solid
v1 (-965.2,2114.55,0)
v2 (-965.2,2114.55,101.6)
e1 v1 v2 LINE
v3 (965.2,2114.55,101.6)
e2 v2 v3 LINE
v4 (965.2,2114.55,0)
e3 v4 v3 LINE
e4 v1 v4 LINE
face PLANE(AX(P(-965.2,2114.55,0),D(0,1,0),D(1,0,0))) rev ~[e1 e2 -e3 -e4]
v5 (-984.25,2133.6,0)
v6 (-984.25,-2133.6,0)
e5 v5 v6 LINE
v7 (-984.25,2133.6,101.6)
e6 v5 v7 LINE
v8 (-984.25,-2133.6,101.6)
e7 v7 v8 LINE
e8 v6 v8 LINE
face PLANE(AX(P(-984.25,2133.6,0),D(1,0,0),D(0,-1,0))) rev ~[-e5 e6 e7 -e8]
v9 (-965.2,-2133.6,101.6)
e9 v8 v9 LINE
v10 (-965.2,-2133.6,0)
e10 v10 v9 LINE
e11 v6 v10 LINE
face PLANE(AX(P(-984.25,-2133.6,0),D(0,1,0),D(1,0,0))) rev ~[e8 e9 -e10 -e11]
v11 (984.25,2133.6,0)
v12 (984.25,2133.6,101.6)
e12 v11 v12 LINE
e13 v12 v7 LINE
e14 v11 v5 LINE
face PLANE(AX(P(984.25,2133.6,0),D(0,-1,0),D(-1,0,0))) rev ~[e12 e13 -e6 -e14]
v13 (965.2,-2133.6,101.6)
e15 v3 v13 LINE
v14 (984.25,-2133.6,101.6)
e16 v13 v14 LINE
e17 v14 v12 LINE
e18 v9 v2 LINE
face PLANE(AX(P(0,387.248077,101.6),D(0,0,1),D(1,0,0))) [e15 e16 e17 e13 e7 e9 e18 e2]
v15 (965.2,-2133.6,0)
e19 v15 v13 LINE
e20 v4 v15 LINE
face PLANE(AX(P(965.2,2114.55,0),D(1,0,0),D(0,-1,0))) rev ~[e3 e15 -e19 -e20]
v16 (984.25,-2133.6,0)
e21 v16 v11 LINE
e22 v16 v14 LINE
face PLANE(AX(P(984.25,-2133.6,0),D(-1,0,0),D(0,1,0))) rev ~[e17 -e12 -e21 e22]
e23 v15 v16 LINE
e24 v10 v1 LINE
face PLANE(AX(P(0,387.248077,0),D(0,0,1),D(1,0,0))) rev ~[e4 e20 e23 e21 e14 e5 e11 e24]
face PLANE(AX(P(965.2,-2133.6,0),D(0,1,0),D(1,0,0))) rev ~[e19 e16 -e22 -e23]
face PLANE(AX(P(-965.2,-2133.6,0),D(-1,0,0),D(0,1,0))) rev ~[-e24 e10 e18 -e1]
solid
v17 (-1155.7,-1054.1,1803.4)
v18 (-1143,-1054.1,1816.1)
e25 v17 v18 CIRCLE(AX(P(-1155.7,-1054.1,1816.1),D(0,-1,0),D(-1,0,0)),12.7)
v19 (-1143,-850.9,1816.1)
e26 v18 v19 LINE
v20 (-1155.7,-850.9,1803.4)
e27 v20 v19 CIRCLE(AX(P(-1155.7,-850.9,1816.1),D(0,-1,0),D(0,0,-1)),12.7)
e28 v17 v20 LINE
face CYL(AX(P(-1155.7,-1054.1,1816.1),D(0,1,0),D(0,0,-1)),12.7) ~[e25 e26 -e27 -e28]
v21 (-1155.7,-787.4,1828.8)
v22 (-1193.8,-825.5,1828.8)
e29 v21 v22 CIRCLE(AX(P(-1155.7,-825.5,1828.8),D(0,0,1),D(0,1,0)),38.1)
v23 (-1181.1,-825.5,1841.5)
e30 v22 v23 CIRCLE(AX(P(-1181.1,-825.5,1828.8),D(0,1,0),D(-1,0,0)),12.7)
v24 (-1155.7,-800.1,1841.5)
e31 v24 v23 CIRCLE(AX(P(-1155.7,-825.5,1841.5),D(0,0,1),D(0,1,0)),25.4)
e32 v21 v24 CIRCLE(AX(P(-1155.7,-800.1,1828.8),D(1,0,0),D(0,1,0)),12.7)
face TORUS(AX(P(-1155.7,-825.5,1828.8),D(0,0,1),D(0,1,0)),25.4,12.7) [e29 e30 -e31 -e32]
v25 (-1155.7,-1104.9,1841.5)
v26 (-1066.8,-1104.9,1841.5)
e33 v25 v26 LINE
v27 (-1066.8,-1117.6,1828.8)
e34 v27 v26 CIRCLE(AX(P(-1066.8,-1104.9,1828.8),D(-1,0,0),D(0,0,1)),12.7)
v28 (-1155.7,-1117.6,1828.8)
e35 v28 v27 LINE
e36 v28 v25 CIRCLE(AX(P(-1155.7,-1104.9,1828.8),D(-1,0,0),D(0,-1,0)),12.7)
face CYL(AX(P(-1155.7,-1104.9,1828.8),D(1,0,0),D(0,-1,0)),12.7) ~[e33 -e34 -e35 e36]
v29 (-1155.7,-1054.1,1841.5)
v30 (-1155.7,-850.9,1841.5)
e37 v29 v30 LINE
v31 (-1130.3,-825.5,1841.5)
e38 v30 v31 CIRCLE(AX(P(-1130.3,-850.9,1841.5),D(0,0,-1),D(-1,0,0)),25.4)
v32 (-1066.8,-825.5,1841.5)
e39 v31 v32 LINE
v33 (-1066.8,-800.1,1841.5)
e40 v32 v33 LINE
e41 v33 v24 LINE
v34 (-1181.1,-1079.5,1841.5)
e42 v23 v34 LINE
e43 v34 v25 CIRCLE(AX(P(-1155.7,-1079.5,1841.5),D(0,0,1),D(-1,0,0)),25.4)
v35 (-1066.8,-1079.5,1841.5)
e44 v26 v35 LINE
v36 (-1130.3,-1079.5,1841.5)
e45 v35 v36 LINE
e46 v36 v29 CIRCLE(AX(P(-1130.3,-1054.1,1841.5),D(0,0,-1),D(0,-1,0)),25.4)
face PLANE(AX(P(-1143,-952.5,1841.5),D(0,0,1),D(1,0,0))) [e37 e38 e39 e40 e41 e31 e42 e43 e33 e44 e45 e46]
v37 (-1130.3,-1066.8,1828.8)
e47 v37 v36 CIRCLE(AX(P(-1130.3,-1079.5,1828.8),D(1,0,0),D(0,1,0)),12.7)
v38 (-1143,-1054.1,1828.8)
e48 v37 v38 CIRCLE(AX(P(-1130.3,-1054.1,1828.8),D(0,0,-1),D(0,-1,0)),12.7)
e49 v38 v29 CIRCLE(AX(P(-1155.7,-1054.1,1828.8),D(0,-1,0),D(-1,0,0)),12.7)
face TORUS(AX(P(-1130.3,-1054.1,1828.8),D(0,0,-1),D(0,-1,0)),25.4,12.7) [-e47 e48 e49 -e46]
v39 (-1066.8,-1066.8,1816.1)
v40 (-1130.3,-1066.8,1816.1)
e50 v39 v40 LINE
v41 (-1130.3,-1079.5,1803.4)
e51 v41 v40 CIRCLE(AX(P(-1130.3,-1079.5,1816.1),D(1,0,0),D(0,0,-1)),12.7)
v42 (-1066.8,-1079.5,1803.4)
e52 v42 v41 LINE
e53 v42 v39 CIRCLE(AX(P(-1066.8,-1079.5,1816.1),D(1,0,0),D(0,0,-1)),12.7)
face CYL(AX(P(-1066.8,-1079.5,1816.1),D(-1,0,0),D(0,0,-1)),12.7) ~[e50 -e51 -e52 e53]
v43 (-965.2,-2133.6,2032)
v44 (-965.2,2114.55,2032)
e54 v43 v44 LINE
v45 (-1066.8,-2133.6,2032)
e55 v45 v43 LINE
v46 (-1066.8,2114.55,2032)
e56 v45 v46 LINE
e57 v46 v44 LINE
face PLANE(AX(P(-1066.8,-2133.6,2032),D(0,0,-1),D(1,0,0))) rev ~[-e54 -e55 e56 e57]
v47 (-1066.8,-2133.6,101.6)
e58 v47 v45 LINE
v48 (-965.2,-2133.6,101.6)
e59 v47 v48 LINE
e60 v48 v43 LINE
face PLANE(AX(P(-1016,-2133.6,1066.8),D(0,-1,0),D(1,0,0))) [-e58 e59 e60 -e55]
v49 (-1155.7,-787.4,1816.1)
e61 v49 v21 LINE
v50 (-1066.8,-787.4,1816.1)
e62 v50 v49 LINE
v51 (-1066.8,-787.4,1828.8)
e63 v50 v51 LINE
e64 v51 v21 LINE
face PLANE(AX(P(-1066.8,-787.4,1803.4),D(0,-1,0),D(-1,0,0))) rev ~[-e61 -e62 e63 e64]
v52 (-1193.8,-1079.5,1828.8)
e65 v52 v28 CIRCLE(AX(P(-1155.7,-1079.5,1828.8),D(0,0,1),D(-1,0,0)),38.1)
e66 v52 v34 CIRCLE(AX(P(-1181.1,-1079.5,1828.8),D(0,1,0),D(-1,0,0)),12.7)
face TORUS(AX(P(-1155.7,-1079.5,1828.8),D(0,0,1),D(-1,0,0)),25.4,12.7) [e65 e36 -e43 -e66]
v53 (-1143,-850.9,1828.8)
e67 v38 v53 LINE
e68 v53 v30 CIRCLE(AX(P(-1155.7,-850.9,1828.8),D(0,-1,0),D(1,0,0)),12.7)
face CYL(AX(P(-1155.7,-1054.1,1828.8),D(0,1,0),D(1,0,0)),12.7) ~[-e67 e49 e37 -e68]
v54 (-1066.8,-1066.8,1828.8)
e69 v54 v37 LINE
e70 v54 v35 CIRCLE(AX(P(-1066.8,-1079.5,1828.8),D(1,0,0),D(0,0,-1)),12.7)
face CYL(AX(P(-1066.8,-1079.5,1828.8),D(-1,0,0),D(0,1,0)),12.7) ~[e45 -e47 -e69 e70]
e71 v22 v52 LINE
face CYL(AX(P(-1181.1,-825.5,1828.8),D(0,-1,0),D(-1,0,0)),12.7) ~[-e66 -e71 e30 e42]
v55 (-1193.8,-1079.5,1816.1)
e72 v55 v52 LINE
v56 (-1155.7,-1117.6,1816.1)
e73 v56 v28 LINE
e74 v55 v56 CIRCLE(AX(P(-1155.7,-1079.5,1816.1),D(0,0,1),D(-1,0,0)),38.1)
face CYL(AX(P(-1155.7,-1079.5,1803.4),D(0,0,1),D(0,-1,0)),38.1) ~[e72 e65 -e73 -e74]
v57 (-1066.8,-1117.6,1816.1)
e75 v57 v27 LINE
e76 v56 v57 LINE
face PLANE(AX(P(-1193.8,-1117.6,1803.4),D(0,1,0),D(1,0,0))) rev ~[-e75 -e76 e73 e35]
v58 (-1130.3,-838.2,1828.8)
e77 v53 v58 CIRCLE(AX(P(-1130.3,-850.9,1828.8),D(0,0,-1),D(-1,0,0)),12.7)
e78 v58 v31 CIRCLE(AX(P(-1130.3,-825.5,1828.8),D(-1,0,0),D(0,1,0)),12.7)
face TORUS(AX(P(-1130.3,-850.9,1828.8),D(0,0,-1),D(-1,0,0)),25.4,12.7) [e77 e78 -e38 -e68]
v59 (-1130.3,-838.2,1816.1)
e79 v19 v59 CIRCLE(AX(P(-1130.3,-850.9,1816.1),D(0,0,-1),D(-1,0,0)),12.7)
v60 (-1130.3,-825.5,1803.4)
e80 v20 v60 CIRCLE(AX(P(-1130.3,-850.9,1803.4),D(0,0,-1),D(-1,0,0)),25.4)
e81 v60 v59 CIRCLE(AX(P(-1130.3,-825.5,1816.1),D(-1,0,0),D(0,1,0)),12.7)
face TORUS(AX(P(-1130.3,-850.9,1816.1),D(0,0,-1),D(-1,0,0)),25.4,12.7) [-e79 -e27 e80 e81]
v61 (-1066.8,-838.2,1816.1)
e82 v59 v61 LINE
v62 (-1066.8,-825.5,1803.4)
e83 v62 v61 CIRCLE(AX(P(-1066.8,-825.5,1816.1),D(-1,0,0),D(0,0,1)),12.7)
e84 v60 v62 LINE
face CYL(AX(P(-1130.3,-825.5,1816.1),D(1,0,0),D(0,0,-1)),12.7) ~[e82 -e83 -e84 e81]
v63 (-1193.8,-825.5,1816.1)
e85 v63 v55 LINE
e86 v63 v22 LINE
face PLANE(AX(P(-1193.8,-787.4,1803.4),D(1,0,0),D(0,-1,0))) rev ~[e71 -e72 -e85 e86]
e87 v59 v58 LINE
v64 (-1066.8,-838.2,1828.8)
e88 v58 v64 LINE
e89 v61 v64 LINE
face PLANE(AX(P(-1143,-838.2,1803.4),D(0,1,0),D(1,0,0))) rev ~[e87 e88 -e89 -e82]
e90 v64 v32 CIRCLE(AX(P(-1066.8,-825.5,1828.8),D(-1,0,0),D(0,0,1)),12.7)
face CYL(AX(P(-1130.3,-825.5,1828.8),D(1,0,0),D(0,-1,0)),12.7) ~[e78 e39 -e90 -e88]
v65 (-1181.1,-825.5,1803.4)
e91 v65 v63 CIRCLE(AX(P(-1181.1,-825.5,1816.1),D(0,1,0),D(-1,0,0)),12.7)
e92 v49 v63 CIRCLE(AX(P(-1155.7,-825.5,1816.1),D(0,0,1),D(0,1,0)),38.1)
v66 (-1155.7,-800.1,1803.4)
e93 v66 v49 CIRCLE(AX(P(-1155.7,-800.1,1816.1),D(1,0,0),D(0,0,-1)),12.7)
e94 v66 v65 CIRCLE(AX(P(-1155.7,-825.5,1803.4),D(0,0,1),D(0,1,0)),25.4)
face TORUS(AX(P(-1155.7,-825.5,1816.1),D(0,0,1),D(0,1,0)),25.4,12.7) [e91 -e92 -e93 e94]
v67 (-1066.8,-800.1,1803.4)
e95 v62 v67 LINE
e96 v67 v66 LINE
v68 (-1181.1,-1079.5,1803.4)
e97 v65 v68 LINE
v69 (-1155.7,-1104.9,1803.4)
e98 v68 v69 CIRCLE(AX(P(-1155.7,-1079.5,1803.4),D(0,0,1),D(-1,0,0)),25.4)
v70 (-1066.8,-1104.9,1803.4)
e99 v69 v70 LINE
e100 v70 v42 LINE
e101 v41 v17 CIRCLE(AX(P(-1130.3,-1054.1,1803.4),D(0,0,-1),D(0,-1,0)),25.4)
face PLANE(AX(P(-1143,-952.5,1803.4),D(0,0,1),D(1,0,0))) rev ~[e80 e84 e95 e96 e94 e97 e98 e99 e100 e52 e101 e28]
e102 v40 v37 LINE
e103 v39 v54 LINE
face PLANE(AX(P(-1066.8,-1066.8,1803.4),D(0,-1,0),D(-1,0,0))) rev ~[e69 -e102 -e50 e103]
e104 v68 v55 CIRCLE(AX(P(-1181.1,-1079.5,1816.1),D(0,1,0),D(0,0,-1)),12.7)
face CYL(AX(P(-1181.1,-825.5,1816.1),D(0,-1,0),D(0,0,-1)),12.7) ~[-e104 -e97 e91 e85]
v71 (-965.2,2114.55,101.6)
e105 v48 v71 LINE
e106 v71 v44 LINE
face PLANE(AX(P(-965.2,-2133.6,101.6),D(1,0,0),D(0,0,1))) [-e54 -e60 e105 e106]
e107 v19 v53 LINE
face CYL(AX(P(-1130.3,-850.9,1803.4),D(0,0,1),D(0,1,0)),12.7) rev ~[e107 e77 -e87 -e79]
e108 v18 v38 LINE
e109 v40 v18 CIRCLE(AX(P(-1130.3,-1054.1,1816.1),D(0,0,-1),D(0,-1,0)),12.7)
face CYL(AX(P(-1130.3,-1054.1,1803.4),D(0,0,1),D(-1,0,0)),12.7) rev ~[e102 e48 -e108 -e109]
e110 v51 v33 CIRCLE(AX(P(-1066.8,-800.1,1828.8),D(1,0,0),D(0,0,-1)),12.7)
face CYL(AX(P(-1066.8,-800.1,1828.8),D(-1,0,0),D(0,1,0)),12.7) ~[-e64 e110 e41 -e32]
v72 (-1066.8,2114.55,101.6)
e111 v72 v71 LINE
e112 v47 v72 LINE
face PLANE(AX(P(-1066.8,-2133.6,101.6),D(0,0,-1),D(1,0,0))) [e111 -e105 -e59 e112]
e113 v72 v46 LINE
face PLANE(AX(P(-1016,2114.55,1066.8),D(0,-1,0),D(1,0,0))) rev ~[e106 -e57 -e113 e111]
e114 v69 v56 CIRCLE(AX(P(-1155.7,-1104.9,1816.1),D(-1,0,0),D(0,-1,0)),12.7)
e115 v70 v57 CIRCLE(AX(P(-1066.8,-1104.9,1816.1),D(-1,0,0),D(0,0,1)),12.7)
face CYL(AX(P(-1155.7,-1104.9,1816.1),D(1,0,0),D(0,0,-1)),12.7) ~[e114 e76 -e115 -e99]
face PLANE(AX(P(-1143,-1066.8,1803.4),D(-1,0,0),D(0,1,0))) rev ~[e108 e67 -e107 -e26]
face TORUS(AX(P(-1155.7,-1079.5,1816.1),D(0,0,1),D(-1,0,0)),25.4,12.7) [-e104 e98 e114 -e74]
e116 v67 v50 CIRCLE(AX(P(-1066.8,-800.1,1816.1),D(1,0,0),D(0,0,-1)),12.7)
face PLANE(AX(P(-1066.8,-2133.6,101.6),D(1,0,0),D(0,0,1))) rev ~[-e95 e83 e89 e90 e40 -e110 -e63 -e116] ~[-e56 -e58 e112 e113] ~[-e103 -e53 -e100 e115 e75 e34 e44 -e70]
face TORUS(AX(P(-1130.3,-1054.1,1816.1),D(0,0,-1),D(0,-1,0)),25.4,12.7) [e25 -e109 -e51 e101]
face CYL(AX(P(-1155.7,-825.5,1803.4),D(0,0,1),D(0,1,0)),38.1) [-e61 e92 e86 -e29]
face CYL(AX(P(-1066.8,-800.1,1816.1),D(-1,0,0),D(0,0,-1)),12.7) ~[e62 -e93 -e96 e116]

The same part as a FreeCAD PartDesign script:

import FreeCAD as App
import Part
import Sketcher
from FreeCAD import Vector
Q = App.Units.Quantity


def edges_at(feature, points):
    """Names of the edges that pass closest to the given points."""
    edges = feature.Shape.Edges
    near = lambda p: min(range(len(edges)), key=lambda i: edges[i].distToShape(Part.Vertex(*p))[0])
    return sorted({f"Edge{near(p) + 1}" for p in points})


def add_polygon(sketch, points):
    """Adds a closed chain of lines whose ends are joined by coincident constraints."""
    first, n = sketch.GeometryCount, len(points)
    for a, b in zip(points, points[1:] + points[:1]):
        sketch.addGeometry(Part.LineSegment(App.Vector(*a, 0), App.Vector(*b, 0)), False)
    for i in range(n):
        sketch.addConstraint(Sketcher.Constraint("Coincident", first + i, 2, first + (i + 1) % n, 1))

doc = App.newDocument("Part")
body = doc.addObject("PartDesign::Body", "Body")

sketch1 = body.newObject("Sketcher::SketchObject", "Sketch")
sketch1.AttachmentSupport = (doc.getObject("XY_Plane"), [""])
sketch1.MapMode = "FlatFace"
add_polygon(sketch1, [(965.2, 2114.55), (965.2, -2133.6), (984.25, -2133.6), (984.25, 2133.6), (-984.25, 2133.6), (-984.25, -2133.6), (-965.2, -2133.6), (-965.2, 2114.55)])
sketch1.addConstraint(Sketcher.Constraint("Vertical", 0))
sketch1.addConstraint(Sketcher.Constraint("Horizontal", 1))
sketch1.addConstraint(Sketcher.Constraint("Vertical", 2))
sketch1.addConstraint(Sketcher.Constraint("Horizontal", 3))
sketch1.addConstraint(Sketcher.Constraint("Vertical", 4))
sketch1.addConstraint(Sketcher.Constraint("Horizontal", 5))
sketch1.addConstraint(Sketcher.Constraint("Vertical", 6))
sketch1.addConstraint(Sketcher.Constraint("Horizontal", 7))
sketch1.addConstraint(Sketcher.Constraint("Symmetric", 1, 2, 3, 2, -1, 1))
sketch1.addConstraint(Sketcher.Constraint("Symmetric", 0, 2, 5, 2, -2))
sketch1.addConstraint(Sketcher.Constraint("DistanceX", 7, 1, 7, 2, Q("76 in")))
sketch1.addConstraint(Sketcher.Constraint("DistanceY", 2, 1, 2, 2, Q("168 in")))
sketch1.addConstraint(Sketcher.Constraint("DistanceX", 3, 2, 3, 1, Q("77.5 in")))
sketch1.addConstraint(Sketcher.Constraint("DistanceY", 0, 2, 0, 1, Q("167.25 in")))
pad1 = body.newObject("PartDesign::Pad", "Pad")
pad1.Profile = sketch1
pad1.Length = Q("4 in")
body2 = doc.addObject("PartDesign::Body", "Body001")

sketch2 = body2.newObject("Sketcher::SketchObject", "Sketch001")
sketch2.AttachmentSupport = (doc.getObject("XZ_Plane001"), [""])
sketch2.MapMode = "FlatFace"
sketch2.AttachmentOffset = App.Placement(Vector(0, 0, 84 * 25.4), App.Rotation())
add_polygon(sketch2, [(-1066.8, 2032), (-1066.8, 101.6), (-965.2, 101.6), (-965.2, 2032)])
sketch2.addConstraint(Sketcher.Constraint("Vertical", 0))
sketch2.addConstraint(Sketcher.Constraint("Horizontal", 1))
sketch2.addConstraint(Sketcher.Constraint("Vertical", 2))
sketch2.addConstraint(Sketcher.Constraint("Horizontal", 3))
sketch2.addConstraint(Sketcher.Constraint("DistanceX", 1, 1, 1, 2, Q("4 in")))
sketch2.addConstraint(Sketcher.Constraint("DistanceY", 0, 2, 0, 1, Q("76 in")))
sketch2.addConstraint(Sketcher.Constraint("DistanceX", 0, 2, -1, 1, Q("42 in")))
sketch2.addConstraint(Sketcher.Constraint("DistanceY", -1, 1, 0, 2, Q("4 in")))
pad2 = body2.newObject("PartDesign::Pad", "Pad001")
pad2.Profile = sketch2
pad2.Length = Q("167.25 in")
pad2.Reversed = True

sketch3 = body2.newObject("Sketcher::SketchObject", "Sketch002")
sketch3.AttachmentSupport = (doc.getObject("XY_Plane001"), [""])
sketch3.MapMode = "FlatFace"
sketch3.AttachmentOffset = App.Placement(Vector(0, 0, 71 * 25.4), App.Rotation())
add_polygon(sketch3, [(-1066.8, -787.4), (-1193.8, -787.4), (-1193.8, -1117.6), (-1066.8, -1117.6), (-1066.8, -1066.8), (-1143, -1066.8), (-1143, -838.2), (-1066.8, -838.2)])
sketch3.addConstraint(Sketcher.Constraint("Horizontal", 0))
sketch3.addConstraint(Sketcher.Constraint("Vertical", 1))
sketch3.addConstraint(Sketcher.Constraint("Horizontal", 2))
sketch3.addConstraint(Sketcher.Constraint("Vertical", 3))
sketch3.addConstraint(Sketcher.Constraint("Horizontal", 4))
sketch3.addConstraint(Sketcher.Constraint("Vertical", 5))
sketch3.addConstraint(Sketcher.Constraint("Horizontal", 6))
sketch3.addConstraint(Sketcher.Constraint("Vertical", 7))
sketch3.addConstraint(Sketcher.Constraint("Vertical", 3, 2, 6, 2))
sketch3.addConstraint(Sketcher.Constraint("Equal", 3, 7))
sketch3.addConstraint(Sketcher.Constraint("DistanceX", 0, 2, 0, 1, Q("5 in")))
sketch3.addConstraint(Sketcher.Constraint("DistanceX", 4, 2, 4, 1, Q("3 in")))
sketch3.addConstraint(Sketcher.Constraint("DistanceY", 1, 2, 1, 1, Q("13 in")))
sketch3.addConstraint(Sketcher.Constraint("DistanceY", 3, 1, 3, 2, Q("2 in")))
sketch3.addConstraint(Sketcher.Constraint("DistanceX", 0, 2, -1, 1, Q("47 in")))
sketch3.addConstraint(Sketcher.Constraint("DistanceY", 0, 2, -1, 1, Q("31 in")))
pad3 = body2.newObject("PartDesign::Pad", "Pad002")
pad3.Profile = sketch3
pad3.Length = Q("1.5 in")
doc.recompute()

fillet = body2.newObject("PartDesign::Fillet", "Fillet")
fillet.Base = (pad3, edges_at(pad3, [(-1193.8, -787.4, 1822.45), (-1193.8, -1117.6, 1822.45)]))
fillet.Radius = Q("1.5 in")
doc.recompute()

fillet2 = body2.newObject("PartDesign::Fillet", "Fillet001")
fillet2.Base = (fillet, edges_at(fillet, [(-1143, -1066.8, 1822.45), (-1143, -838.2, 1822.45)]))
fillet2.Radius = Q("0.5 in")
doc.recompute()

fillet3 = body2.newObject("PartDesign::Fillet", "Fillet002")
fillet3.Base = (fillet2, edges_at(fillet2, [
    (-1111.25, -787.4, 1803.4),
    (-1098.55, -1066.8, 1803.4),
    (-1111.25, -787.4, 1841.5),
    (-1098.55, -1066.8, 1841.5),
    (-1111.25, -1117.6, 1803.4),
    (-1111.25, -1117.6, 1841.5),
    (-1193.8, -952.5, 1803.4),
    (-1182.641, -798.559, 1803.4),
    (-1182.641, -1106.441, 1803.4),
    (-1193.8, -952.5, 1841.5),
    (-1182.641, -798.559, 1841.5),
    (-1182.641, -1106.441, 1841.5),
    (-1143, -952.5, 1803.4),
    (-1143, -952.5, 1841.5),
    (-1098.55, -838.2, 1803.4),
    (-1098.55, -838.2, 1841.5),
    (-1139.28, -1063.08, 1803.4),
    (-1139.28, -1063.08, 1841.5),
    (-1139.28, -841.92, 1803.4),
    (-1139.28, -841.92, 1841.5),
]))
fillet3.Radius = Q("0.5 in")

doc.recompute()
